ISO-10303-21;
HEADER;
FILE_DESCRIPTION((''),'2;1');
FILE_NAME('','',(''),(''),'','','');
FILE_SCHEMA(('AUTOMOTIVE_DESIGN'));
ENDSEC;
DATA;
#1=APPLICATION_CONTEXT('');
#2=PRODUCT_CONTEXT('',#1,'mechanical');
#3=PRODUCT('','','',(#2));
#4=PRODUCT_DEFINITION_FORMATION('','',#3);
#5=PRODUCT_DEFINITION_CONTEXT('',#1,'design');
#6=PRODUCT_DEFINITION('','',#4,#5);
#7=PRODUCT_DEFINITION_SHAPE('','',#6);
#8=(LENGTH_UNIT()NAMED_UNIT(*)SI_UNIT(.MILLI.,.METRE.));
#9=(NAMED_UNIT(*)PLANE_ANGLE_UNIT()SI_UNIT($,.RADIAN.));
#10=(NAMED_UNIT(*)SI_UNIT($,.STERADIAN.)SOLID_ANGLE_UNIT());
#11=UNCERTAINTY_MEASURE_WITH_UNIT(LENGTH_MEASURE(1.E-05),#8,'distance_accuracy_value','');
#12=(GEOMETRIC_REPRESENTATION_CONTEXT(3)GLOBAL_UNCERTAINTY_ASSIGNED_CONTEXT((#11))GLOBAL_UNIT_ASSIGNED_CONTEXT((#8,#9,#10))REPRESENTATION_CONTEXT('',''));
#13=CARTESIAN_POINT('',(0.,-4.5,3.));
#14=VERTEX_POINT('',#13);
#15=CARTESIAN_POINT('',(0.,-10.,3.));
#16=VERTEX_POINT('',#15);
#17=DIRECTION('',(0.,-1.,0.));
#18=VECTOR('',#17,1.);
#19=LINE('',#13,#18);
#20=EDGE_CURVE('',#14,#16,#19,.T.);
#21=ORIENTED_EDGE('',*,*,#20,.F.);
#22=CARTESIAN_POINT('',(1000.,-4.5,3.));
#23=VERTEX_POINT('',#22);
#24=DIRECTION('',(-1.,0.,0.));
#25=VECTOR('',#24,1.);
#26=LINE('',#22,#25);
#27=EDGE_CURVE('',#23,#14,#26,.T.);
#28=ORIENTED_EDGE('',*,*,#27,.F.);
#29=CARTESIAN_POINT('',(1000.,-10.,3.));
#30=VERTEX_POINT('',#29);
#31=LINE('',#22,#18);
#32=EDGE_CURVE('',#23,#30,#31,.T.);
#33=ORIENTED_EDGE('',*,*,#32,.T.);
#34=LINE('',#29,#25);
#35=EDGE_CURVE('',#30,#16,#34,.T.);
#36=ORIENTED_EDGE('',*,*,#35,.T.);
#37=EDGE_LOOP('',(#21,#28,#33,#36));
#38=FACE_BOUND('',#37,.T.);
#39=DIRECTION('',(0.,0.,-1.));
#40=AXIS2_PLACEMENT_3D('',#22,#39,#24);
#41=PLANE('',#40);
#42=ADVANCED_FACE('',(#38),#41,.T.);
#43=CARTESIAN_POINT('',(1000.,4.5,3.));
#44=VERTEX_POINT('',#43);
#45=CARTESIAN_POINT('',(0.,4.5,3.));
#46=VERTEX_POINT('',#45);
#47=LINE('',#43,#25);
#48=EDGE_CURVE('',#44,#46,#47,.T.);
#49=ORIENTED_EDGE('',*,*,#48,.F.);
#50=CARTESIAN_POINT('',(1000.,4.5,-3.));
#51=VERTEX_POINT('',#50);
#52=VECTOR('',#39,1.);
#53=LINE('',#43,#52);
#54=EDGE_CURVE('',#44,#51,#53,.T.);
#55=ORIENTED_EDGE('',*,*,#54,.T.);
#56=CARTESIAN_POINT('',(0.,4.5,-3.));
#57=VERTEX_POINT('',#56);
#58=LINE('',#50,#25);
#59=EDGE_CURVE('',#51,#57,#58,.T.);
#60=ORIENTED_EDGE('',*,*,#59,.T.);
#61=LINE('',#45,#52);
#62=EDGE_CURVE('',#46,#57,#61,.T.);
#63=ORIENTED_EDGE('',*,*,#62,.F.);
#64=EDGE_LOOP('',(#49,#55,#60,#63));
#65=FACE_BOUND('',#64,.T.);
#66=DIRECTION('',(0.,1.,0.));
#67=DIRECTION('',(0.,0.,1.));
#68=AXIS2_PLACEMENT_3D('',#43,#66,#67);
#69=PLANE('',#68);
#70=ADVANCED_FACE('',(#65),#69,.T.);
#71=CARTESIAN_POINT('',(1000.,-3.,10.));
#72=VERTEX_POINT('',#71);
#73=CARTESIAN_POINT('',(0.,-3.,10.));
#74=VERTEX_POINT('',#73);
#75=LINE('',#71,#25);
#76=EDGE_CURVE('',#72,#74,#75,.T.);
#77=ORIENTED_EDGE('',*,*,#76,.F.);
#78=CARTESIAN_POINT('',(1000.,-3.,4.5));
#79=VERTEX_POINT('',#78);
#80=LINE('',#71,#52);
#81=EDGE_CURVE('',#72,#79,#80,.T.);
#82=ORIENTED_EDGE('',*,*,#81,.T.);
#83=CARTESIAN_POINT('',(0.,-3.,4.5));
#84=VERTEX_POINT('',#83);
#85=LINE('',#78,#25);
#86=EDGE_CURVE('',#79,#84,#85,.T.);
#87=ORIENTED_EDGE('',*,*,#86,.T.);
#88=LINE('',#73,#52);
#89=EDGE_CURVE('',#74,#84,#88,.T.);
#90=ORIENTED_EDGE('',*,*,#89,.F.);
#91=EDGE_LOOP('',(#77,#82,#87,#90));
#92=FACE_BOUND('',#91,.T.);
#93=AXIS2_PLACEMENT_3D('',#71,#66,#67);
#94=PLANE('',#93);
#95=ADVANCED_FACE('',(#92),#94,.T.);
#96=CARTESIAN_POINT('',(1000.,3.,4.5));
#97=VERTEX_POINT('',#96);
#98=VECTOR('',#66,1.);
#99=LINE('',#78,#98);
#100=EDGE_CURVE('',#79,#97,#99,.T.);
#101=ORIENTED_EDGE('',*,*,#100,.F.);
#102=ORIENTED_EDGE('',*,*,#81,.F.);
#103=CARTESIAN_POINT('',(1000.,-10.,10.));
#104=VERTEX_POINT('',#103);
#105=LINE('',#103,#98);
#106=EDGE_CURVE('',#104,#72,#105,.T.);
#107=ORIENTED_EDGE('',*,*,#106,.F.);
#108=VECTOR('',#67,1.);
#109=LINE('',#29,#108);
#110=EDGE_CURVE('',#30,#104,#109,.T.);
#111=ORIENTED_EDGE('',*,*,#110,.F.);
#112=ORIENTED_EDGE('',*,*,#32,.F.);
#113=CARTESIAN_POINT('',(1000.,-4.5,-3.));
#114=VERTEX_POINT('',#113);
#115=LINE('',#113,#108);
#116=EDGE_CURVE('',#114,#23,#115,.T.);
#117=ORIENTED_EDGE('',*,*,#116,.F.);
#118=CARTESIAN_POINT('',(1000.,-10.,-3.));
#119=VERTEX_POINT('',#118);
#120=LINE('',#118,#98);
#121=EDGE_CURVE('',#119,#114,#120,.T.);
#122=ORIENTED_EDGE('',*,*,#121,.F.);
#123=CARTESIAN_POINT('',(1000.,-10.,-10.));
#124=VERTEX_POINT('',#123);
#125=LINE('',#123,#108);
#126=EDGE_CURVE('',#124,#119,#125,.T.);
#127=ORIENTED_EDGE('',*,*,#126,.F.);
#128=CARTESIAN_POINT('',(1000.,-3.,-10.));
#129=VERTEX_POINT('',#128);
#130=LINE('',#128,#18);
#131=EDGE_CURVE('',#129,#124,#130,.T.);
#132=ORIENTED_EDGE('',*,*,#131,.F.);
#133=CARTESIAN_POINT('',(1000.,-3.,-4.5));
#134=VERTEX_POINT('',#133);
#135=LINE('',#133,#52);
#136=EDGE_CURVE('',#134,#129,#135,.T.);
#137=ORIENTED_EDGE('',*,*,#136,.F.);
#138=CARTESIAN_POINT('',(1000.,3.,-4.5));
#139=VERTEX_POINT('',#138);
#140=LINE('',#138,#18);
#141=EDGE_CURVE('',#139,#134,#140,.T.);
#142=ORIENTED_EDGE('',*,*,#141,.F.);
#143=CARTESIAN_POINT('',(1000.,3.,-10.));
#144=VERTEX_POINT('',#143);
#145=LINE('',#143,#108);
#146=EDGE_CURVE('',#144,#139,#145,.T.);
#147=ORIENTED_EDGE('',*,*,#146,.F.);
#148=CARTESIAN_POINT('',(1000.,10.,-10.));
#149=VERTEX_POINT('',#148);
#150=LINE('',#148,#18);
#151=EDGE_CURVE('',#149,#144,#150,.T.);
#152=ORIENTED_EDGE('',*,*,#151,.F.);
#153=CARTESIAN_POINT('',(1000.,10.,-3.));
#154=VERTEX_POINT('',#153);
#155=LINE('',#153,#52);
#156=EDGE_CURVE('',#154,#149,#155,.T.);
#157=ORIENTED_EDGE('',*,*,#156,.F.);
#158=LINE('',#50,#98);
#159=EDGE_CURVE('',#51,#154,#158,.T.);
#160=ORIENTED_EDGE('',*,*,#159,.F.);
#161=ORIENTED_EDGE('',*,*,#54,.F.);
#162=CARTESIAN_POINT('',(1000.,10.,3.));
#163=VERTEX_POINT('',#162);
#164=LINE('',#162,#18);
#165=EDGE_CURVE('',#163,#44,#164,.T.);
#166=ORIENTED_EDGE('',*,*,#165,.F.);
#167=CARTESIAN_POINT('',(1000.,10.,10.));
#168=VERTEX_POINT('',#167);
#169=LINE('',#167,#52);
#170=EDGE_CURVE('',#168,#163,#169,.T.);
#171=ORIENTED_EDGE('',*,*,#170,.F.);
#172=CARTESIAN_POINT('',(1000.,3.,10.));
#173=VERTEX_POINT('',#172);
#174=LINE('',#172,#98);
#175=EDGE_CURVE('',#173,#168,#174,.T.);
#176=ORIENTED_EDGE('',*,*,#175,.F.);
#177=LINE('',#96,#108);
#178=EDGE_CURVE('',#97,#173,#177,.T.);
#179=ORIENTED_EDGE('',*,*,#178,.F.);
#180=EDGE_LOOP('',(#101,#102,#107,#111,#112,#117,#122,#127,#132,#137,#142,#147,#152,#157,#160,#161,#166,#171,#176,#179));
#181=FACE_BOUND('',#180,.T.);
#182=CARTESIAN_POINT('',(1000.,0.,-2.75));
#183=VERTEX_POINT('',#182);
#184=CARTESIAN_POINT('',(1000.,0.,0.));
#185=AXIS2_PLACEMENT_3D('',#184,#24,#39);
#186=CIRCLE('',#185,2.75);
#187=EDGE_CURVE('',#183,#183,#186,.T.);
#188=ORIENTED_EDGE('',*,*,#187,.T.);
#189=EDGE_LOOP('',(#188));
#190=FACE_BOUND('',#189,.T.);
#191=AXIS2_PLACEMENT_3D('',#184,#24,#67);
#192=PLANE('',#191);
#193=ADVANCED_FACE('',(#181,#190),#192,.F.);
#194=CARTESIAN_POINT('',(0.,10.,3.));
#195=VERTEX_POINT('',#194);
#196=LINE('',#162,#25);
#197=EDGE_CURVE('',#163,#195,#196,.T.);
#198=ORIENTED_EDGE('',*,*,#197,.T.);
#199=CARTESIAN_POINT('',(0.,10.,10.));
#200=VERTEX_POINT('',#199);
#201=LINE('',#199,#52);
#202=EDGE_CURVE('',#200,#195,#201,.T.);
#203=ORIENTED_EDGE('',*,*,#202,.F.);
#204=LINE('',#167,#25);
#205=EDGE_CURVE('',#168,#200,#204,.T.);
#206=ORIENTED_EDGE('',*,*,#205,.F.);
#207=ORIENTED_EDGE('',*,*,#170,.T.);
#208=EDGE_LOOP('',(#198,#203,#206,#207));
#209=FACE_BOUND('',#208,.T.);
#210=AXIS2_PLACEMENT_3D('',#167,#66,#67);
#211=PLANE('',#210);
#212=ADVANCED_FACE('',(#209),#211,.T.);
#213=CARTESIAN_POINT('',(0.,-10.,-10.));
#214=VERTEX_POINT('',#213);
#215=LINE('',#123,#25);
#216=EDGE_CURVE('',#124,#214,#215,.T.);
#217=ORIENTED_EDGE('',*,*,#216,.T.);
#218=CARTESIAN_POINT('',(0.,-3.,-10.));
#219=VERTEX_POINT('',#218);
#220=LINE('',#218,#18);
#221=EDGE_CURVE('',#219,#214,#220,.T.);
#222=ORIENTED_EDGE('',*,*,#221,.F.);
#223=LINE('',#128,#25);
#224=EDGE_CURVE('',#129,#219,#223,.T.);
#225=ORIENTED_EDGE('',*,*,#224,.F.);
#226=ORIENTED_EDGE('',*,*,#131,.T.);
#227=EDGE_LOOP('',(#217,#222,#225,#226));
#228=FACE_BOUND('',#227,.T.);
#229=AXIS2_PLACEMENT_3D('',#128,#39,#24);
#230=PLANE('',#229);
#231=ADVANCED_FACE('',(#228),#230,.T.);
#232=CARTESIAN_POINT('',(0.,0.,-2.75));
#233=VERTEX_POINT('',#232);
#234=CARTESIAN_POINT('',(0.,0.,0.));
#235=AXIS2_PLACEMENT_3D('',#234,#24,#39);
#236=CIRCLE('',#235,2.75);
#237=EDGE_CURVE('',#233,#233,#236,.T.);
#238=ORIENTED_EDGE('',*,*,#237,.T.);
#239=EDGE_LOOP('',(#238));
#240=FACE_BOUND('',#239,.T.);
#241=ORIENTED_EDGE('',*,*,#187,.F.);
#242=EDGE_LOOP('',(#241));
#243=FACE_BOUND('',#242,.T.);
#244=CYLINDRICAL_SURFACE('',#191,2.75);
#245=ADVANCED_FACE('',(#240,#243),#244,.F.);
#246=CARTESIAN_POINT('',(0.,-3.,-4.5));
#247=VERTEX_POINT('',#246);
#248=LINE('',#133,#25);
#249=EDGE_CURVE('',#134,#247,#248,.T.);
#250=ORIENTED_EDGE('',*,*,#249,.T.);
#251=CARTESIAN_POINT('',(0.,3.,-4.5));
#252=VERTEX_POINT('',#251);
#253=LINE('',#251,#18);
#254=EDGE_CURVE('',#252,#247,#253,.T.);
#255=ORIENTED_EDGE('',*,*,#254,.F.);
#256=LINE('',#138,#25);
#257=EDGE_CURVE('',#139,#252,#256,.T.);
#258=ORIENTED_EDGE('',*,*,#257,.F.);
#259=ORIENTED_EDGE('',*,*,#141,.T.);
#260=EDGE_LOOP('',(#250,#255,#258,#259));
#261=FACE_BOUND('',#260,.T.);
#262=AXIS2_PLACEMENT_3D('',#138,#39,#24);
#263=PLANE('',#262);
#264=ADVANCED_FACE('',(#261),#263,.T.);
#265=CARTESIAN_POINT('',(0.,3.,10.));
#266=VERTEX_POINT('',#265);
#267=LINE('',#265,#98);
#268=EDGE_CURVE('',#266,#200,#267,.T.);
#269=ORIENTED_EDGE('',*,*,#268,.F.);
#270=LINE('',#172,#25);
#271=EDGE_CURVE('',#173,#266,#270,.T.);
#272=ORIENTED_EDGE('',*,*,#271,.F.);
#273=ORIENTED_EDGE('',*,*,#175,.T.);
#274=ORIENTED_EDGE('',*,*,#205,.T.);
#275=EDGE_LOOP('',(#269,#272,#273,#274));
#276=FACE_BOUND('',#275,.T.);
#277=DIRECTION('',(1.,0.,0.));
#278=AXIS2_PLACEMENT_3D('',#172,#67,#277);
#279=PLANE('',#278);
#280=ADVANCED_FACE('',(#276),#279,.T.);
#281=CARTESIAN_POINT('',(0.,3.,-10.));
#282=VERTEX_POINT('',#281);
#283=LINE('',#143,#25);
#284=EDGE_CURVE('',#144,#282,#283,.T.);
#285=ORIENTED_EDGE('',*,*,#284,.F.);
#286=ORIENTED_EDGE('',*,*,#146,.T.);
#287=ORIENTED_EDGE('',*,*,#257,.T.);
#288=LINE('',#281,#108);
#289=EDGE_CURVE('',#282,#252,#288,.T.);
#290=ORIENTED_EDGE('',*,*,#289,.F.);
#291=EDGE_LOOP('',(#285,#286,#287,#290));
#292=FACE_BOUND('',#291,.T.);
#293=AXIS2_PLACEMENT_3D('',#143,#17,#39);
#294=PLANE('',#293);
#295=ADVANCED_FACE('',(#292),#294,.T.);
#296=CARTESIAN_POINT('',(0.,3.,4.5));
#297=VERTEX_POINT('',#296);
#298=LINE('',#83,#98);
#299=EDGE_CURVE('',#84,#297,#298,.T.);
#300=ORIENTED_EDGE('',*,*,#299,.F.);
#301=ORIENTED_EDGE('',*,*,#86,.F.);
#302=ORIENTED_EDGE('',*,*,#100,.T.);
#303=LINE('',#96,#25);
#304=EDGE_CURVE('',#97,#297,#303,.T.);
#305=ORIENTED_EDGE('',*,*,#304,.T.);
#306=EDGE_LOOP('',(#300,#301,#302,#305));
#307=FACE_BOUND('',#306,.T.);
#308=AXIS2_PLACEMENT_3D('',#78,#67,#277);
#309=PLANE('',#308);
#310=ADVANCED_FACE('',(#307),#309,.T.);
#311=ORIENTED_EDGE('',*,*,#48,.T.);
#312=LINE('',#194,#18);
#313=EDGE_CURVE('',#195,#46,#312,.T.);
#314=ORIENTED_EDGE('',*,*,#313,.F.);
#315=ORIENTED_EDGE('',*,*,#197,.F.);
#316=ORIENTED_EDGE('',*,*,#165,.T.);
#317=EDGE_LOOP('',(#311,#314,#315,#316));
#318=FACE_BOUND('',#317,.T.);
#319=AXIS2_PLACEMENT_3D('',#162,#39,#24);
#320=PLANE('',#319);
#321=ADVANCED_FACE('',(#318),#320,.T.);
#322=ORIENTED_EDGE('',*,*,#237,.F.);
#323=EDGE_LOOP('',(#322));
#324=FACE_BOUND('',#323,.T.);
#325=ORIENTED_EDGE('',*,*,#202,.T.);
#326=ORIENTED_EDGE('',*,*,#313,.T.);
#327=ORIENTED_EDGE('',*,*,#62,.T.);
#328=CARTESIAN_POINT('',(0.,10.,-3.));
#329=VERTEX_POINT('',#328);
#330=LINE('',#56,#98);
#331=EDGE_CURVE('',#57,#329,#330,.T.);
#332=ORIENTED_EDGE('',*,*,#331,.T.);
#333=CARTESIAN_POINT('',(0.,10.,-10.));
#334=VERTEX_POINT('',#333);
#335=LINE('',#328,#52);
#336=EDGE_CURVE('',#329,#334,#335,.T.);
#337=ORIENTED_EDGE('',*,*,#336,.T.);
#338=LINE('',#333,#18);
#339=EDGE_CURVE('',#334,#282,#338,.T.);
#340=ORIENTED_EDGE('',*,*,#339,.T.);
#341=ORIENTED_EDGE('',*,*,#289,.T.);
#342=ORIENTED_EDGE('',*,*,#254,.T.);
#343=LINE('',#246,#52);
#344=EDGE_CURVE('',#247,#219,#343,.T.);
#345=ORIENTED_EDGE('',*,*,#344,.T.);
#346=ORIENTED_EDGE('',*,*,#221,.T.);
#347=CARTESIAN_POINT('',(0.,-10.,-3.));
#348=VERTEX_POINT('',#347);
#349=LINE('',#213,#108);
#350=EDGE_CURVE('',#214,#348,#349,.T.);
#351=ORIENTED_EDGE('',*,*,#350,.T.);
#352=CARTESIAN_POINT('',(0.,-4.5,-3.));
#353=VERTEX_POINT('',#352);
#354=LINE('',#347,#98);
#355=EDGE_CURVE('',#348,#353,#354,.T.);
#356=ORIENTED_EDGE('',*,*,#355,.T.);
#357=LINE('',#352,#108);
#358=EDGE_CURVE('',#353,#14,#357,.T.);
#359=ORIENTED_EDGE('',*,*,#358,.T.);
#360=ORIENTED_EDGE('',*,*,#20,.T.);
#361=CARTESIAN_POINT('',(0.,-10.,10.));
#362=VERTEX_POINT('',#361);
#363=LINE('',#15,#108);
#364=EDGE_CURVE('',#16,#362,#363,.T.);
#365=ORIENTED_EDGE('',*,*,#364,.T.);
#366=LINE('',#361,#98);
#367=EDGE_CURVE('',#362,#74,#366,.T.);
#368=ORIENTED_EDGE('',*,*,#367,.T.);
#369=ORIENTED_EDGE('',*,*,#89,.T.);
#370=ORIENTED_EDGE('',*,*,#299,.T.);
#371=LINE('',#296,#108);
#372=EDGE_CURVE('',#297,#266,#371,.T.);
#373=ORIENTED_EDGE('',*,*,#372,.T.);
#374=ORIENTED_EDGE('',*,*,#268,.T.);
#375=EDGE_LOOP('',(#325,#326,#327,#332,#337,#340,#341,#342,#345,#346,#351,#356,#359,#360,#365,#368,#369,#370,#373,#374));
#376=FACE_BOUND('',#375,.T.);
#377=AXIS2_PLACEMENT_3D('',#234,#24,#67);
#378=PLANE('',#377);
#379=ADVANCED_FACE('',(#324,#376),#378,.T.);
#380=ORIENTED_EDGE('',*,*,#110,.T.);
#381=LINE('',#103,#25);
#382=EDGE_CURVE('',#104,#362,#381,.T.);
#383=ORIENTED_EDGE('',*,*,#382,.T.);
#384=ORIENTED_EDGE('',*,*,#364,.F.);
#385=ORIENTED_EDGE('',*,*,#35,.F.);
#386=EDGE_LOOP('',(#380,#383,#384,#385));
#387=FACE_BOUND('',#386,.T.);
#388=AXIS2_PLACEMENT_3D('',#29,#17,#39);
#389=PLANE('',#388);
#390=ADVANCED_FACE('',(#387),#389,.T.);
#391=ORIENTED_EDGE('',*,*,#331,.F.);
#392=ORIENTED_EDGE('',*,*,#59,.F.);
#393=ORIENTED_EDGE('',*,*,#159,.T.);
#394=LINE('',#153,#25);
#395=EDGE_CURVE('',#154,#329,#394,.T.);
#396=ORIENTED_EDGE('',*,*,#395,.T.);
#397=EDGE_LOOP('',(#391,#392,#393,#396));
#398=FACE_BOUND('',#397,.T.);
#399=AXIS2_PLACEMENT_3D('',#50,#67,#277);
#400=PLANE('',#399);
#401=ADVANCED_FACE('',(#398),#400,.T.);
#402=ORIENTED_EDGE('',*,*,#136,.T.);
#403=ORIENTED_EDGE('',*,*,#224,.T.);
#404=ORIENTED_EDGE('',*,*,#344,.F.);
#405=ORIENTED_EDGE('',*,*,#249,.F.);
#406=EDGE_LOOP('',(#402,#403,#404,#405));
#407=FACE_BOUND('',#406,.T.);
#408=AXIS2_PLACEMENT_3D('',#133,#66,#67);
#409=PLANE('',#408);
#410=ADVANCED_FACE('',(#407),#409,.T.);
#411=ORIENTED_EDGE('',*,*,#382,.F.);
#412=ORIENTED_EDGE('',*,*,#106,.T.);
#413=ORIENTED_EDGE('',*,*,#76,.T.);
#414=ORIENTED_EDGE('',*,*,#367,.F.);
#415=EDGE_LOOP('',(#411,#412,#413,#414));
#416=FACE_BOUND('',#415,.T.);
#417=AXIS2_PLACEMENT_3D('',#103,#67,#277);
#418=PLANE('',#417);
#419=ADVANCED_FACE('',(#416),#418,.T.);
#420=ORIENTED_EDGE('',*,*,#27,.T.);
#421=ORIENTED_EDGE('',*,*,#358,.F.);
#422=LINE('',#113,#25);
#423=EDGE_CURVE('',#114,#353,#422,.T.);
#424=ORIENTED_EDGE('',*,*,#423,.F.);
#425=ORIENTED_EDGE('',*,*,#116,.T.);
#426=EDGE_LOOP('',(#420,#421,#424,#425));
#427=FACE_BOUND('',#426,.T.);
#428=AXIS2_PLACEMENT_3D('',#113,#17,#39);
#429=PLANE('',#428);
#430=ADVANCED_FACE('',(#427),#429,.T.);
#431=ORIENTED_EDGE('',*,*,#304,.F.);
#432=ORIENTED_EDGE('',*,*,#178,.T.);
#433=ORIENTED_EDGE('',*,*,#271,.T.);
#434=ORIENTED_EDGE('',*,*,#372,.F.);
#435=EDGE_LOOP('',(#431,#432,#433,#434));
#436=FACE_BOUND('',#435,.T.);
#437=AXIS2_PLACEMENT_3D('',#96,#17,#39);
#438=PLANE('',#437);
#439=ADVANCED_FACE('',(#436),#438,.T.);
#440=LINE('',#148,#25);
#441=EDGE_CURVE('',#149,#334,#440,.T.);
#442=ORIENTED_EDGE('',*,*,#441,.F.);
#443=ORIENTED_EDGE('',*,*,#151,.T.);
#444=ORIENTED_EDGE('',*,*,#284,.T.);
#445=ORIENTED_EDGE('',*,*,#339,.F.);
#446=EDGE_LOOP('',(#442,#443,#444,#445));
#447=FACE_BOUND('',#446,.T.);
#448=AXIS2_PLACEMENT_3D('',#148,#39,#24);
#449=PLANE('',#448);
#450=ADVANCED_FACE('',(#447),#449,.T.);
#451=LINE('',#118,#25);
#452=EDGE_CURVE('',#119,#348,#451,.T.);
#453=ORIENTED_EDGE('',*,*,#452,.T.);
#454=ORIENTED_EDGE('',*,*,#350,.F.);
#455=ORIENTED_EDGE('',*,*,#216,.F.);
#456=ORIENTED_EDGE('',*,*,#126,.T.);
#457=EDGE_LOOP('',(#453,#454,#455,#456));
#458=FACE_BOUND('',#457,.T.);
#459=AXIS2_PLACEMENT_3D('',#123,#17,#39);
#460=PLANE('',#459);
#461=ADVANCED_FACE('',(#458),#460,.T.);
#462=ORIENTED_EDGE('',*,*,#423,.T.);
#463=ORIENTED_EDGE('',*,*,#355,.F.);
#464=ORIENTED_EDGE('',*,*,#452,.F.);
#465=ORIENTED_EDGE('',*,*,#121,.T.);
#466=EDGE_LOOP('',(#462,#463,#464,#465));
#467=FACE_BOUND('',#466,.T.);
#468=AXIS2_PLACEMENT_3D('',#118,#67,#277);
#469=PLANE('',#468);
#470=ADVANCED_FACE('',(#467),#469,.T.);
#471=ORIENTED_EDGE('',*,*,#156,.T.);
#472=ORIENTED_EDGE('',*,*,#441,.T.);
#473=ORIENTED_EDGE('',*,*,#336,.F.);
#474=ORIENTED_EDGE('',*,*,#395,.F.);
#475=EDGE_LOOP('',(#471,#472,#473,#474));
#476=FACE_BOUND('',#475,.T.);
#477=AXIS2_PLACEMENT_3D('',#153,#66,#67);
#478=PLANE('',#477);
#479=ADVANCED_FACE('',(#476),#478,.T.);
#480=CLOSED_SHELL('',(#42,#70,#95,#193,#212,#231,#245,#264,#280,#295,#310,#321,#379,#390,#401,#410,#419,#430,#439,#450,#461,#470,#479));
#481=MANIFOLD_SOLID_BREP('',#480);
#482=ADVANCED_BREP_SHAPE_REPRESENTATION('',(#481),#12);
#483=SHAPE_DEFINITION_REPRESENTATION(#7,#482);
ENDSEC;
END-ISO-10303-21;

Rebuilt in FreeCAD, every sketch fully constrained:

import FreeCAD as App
import Part
import Sketcher

V = App.Vector
Q = App.Units.Quantity


def add_polygon(sketch, points):
    """Adds a closed chain of lines whose ends are joined by coincident constraints."""
    first, n = sketch.GeometryCount, len(points)
    for a, b in zip(points, points[1:] + points[:1]):
        sketch.addGeometry(Part.LineSegment(App.Vector(*a, 0), App.Vector(*b, 0)), False)
    for i in range(n):
        sketch.addConstraint(Sketcher.Constraint("Coincident", first + i, 2, first + (i + 1) % n, 1))

doc = App.newDocument("Part")
body = doc.addObject("PartDesign::Body", "Body")

# Sketch on YZ plane
sketch1 = body.newObject("Sketcher::SketchObject", "Sketch")
sketch1.AttachmentSupport = (doc.getObject("YZ_Plane"), [""])
sketch1.MapMode = "FlatFace"
add_polygon(sketch1, [(3, -10), (3, -4.5), (-3, -4.5), (-3, -10), (-10, -10), (-10, -3), (-4.5, -3), (-4.5, 3), (-10, 3), (-10, 10), (-3, 10), (-3, 4.5), (3, 4.5), (3, 10), (10, 10), (10, 3), (4.5, 3), (4.5, -3), (10, -3), (10, -10)])  # lines 0-19
sketch1.addGeometry(Part.Circle(V(0, 0, 0), V(0, 0, 1), 2.8), False)  # 20
sketch1.addConstraint([
    Sketcher.Constraint("Vertical", 0),
    Sketcher.Constraint("Horizontal", 1),
    Sketcher.Constraint("Vertical", 2),
    Sketcher.Constraint("Horizontal", 3),
    Sketcher.Constraint("Vertical", 4),
    Sketcher.Constraint("Horizontal", 5),
    Sketcher.Constraint("Vertical", 6),
    Sketcher.Constraint("Horizontal", 7),
    Sketcher.Constraint("Vertical", 8),
    Sketcher.Constraint("Horizontal", 9),
    Sketcher.Constraint("Vertical", 10),
    Sketcher.Constraint("Horizontal", 11),
    Sketcher.Constraint("Vertical", 12),
    Sketcher.Constraint("Horizontal", 13),
    Sketcher.Constraint("Vertical", 14),
    Sketcher.Constraint("Horizontal", 15),
    Sketcher.Constraint("Vertical", 16),
    Sketcher.Constraint("Horizontal", 17),
    Sketcher.Constraint("Vertical", 18),
    Sketcher.Constraint("Horizontal", 19),
    Sketcher.Constraint("Coincident", 20, 3, -1, 1),
    Sketcher.Constraint("Symmetric", 0, 2, 10, 2, -1, 1),
    Sketcher.Constraint("Symmetric", 2, 2, 12, 2, -1, 1),
    Sketcher.Constraint("Symmetric", 4, 2, 14, 2, -1, 1),
    Sketcher.Constraint("Symmetric", 6, 2, 16, 2, -1, 1),
    Sketcher.Constraint("Symmetric", 8, 2, 18, 2, -1, 1),
    Sketcher.Constraint("Symmetric", 9, 2, 12, 2, -2),
    Sketcher.Constraint("Symmetric", 7, 2, 14, 2, -2),
    Sketcher.Constraint("Equal", 17, 0),
    Sketcher.Constraint("Equal", 19, 4),
    Sketcher.Constraint("Equal", 11, 6),
    Sketcher.Constraint("Diameter", 20, Q("5.5 mm")),
    Sketcher.Constraint("DistanceX", 1, 2, 1, 1, Q("6 mm")),
    Sketcher.Constraint("DistanceX", 3, 2, 3, 1, Q("7 mm")),
    Sketcher.Constraint("DistanceX", 5, 1, 5, 2, Q("5.5 mm")),
])
pad1 = body.newObject("PartDesign::Pad", "Pad")
pad1.Profile = sketch1
pad1.Length = 1000

doc.recompute()
